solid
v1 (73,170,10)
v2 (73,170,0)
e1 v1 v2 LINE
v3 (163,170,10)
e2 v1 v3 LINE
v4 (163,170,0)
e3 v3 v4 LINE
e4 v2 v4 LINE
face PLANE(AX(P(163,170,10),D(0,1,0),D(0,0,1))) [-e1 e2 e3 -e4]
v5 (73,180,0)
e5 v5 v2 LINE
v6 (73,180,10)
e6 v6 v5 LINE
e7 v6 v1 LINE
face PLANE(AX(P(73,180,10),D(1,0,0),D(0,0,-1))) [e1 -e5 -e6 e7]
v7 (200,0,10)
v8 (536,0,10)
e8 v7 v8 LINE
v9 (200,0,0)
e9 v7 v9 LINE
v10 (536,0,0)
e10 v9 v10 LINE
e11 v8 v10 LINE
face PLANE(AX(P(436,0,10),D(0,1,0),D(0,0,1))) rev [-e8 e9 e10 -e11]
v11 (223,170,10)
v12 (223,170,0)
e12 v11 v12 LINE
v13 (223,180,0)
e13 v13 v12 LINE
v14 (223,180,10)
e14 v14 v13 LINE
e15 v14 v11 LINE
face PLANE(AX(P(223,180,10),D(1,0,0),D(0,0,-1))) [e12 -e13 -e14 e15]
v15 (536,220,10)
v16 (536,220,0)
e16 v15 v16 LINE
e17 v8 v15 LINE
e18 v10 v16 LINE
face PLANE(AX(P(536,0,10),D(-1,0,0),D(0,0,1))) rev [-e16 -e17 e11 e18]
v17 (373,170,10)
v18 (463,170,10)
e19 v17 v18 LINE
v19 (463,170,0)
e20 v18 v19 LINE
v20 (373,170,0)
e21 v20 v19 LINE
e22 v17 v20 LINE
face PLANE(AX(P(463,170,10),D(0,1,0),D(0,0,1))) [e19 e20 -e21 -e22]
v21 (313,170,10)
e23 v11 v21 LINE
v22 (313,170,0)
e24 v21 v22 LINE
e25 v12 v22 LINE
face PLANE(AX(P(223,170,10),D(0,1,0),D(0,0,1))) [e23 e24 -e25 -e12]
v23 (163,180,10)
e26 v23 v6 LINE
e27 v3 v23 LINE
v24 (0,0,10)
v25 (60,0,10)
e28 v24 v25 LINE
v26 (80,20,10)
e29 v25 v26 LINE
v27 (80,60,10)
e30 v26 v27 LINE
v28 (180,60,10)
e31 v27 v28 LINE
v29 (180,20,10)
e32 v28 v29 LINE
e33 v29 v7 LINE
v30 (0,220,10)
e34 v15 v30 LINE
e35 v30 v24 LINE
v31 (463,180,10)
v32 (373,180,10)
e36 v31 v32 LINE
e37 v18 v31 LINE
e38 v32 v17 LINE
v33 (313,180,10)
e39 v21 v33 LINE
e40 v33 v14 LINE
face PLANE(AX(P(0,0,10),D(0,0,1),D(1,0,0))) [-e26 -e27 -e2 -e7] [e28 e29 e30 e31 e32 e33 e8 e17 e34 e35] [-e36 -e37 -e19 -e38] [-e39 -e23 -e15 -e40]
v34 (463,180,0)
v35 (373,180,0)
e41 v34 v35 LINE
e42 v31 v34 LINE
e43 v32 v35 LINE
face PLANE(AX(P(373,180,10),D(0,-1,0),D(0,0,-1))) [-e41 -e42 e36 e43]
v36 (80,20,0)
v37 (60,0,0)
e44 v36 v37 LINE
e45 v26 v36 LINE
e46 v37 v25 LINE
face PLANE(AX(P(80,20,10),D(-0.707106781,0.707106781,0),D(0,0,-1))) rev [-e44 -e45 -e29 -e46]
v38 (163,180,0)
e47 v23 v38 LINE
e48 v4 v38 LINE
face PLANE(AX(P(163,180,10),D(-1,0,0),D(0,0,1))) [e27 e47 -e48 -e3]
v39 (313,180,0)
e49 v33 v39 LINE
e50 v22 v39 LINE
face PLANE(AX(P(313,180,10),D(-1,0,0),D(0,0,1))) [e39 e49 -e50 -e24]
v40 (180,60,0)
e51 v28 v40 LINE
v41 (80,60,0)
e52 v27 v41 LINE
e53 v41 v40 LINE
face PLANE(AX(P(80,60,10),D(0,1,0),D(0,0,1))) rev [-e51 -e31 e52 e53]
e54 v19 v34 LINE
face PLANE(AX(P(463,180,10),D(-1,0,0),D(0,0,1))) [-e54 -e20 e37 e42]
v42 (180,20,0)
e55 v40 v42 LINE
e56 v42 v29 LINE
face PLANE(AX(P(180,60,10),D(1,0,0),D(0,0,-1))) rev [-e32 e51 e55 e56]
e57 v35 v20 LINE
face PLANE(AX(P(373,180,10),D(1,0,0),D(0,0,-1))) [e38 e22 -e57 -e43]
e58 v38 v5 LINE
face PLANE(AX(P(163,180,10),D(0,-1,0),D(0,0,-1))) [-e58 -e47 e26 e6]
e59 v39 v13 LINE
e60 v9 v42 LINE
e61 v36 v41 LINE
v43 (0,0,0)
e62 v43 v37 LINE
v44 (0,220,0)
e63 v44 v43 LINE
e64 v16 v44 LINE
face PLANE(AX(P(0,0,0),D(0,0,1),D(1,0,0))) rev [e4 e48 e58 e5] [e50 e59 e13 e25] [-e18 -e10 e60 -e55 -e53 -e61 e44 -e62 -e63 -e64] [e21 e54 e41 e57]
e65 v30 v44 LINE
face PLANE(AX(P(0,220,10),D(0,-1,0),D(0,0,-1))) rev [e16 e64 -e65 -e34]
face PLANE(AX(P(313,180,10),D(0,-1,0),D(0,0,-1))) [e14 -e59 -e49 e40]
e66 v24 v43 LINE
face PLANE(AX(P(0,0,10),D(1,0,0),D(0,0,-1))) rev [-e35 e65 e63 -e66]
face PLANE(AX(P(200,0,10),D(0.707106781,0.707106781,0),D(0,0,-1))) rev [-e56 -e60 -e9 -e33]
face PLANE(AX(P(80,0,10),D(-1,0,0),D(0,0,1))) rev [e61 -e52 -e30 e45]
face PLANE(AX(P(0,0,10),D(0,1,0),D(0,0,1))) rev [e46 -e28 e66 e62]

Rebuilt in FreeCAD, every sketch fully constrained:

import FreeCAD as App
import Part
import Sketcher
from FreeCAD import Vector


def edges_at(feature, points):
    """Names of the edges that pass closest to the given points."""
    edges = feature.Shape.Edges
    near = lambda p: min(range(len(edges)), key=lambda i: edges[i].distToShape(Part.Vertex(*p))[0])
    return sorted({f"Edge{near(p) + 1}" for p in points})

doc = App.newDocument("Part")
body = doc.addObject("PartDesign::Body", "Body")

# Sketch on XY plane
sketch1 = body.newObject("Sketcher::SketchObject", "Sketch")
sketch1.AttachmentSupport = (doc.getObject("XY_Plane"), [""])
sketch1.MapMode = "FlatFace"
sketch1.addGeometry(Part.LineSegment(Vector(536, 220, 0), Vector(0, 220, 0)), False)
sketch1.addGeometry(Part.LineSegment(Vector(0, 220, 0), Vector(0, 0, 0)), False)
sketch1.addGeometry(Part.LineSegment(Vector(0, 0, 0), Vector(80, 0, 0)), False)
sketch1.addGeometry(Part.LineSegment(Vector(80, 0, 0), Vector(80, 60, 0)), False)
sketch1.addGeometry(Part.LineSegment(Vector(80, 60, 0), Vector(180, 60, 0)), False)
sketch1.addGeometry(Part.LineSegment(Vector(180, 60, 0), Vector(180, 0, 0)), False)
sketch1.addGeometry(Part.LineSegment(Vector(180, 0, 0), Vector(536, 0, 0)), False)
sketch1.addGeometry(Part.LineSegment(Vector(536, 0, 0), Vector(536, 220, 0)), False)
sketch1.addGeometry(Part.LineSegment(Vector(373, 170, 0), Vector(373, 180, 0)), False)
sketch1.addGeometry(Part.LineSegment(Vector(373, 180, 0), Vector(463, 180, 0)), False)
sketch1.addGeometry(Part.LineSegment(Vector(463, 180, 0), Vector(463, 170, 0)), False)
sketch1.addGeometry(Part.LineSegment(Vector(463, 170, 0), Vector(373, 170, 0)), False)
sketch1.addGeometry(Part.LineSegment(Vector(223, 170, 0), Vector(223, 180, 0)), False)
sketch1.addGeometry(Part.LineSegment(Vector(223, 180, 0), Vector(313, 180, 0)), False)
sketch1.addGeometry(Part.LineSegment(Vector(313, 180, 0), Vector(313, 170, 0)), False)
sketch1.addGeometry(Part.LineSegment(Vector(313, 170, 0), Vector(223, 170, 0)), False)
sketch1.addGeometry(Part.LineSegment(Vector(73, 170, 0), Vector(73, 180, 0)), False)
sketch1.addGeometry(Part.LineSegment(Vector(73, 180, 0), Vector(163, 180, 0)), False)
sketch1.addGeometry(Part.LineSegment(Vector(163, 180, 0), Vector(163, 170, 0)), False)
sketch1.addGeometry(Part.LineSegment(Vector(163, 170, 0), Vector(73, 170, 0)), False)
sketch1.addConstraint(Sketcher.Constraint("Coincident", 0, 2, 1, 1))
sketch1.addConstraint(Sketcher.Constraint("Coincident", 1, 2, 2, 1))
sketch1.addConstraint(Sketcher.Constraint("Coincident", 2, 2, 3, 1))
sketch1.addConstraint(Sketcher.Constraint("Coincident", 3, 2, 4, 1))
sketch1.addConstraint(Sketcher.Constraint("Coincident", 4, 2, 5, 1))
sketch1.addConstraint(Sketcher.Constraint("Coincident", 5, 2, 6, 1))
sketch1.addConstraint(Sketcher.Constraint("Coincident", 6, 2, 7, 1))
sketch1.addConstraint(Sketcher.Constraint("Coincident", 7, 2, 0, 1))
sketch1.addConstraint(Sketcher.Constraint("Coincident", 8, 2, 9, 1))
sketch1.addConstraint(Sketcher.Constraint("Coincident", 9, 2, 10, 1))
sketch1.addConstraint(Sketcher.Constraint("Coincident", 10, 2, 11, 1))
sketch1.addConstraint(Sketcher.Constraint("Coincident", 11, 2, 8, 1))
sketch1.addConstraint(Sketcher.Constraint("Coincident", 12, 2, 13, 1))
sketch1.addConstraint(Sketcher.Constraint("Coincident", 13, 2, 14, 1))
sketch1.addConstraint(Sketcher.Constraint("Coincident", 14, 2, 15, 1))
sketch1.addConstraint(Sketcher.Constraint("Coincident", 15, 2, 12, 1))
sketch1.addConstraint(Sketcher.Constraint("Coincident", 16, 2, 17, 1))
sketch1.addConstraint(Sketcher.Constraint("Coincident", 17, 2, 18, 1))
sketch1.addConstraint(Sketcher.Constraint("Coincident", 18, 2, 19, 1))
sketch1.addConstraint(Sketcher.Constraint("Coincident", 19, 2, 16, 1))
sketch1.addConstraint(Sketcher.Constraint("Horizontal", 0))
sketch1.addConstraint(Sketcher.Constraint("Vertical", 1))
sketch1.addConstraint(Sketcher.Constraint("Horizontal", 2))
sketch1.addConstraint(Sketcher.Constraint("Vertical", 3))
sketch1.addConstraint(Sketcher.Constraint("Horizontal", 4))
sketch1.addConstraint(Sketcher.Constraint("Vertical", 5))
sketch1.addConstraint(Sketcher.Constraint("Horizontal", 6))
sketch1.addConstraint(Sketcher.Constraint("Vertical", 7))
sketch1.addConstraint(Sketcher.Constraint("Vertical", 8))
sketch1.addConstraint(Sketcher.Constraint("Horizontal", 9))
sketch1.addConstraint(Sketcher.Constraint("Vertical", 10))
sketch1.addConstraint(Sketcher.Constraint("Horizontal", 11))
sketch1.addConstraint(Sketcher.Constraint("Vertical", 12))
sketch1.addConstraint(Sketcher.Constraint("Horizontal", 13))
sketch1.addConstraint(Sketcher.Constraint("Vertical", 14))
sketch1.addConstraint(Sketcher.Constraint("Horizontal", 15))
sketch1.addConstraint(Sketcher.Constraint("Vertical", 16))
sketch1.addConstraint(Sketcher.Constraint("Horizontal", 17))
sketch1.addConstraint(Sketcher.Constraint("Vertical", 18))
sketch1.addConstraint(Sketcher.Constraint("Horizontal", 19))
sketch1.addConstraint(Sketcher.Constraint("Coincident", 1, 2, -1, 1))
sketch1.addConstraint(Sketcher.Constraint("PointOnObject", 5, 2, -1))
sketch1.addConstraint(Sketcher.Constraint("Horizontal", 9, 2, 12, 2))
sketch1.addConstraint(Sketcher.Constraint("Horizontal", 11, 2, 14, 2))
sketch1.addConstraint(Sketcher.Constraint("Horizontal", 13, 2, 16, 2))
sketch1.addConstraint(Sketcher.Constraint("Horizontal", 15, 2, 18, 2))
sketch1.addConstraint(Sketcher.Constraint("Equal", 11, 13))
sketch1.addConstraint(Sketcher.Constraint("Equal", 15, 17))
sketch1.addConstraint(Sketcher.Constraint("DistanceX", 0, 2, 0, 1, 536.0))
sketch1.addConstraint(Sketcher.Constraint("DistanceX", 2, 1, 2, 2, 80.0))
sketch1.addConstraint(Sketcher.Constraint("DistanceX", 4, 1, 4, 2, 100.0))
sketch1.addConstraint(Sketcher.Constraint("DistanceX", 9, 1, 9, 2, 90.0))
sketch1.addConstraint(Sketcher.Constraint("DistanceY", 1, 2, 1, 1, 220.0))
sketch1.addConstraint(Sketcher.Constraint("DistanceY", 3, 1, 3, 2, 60.0))
sketch1.addConstraint(Sketcher.Constraint("DistanceY", 8, 1, 8, 2, 10.0))
sketch1.addConstraint(Sketcher.Constraint("DistanceX", -1, 1, 8, 2, 373.0))
sketch1.addConstraint(Sketcher.Constraint("DistanceY", -1, 1, 8, 2, 180.0))
sketch1.addConstraint(Sketcher.Constraint("DistanceX", -1, 1, 12, 2, 223.0))
sketch1.addConstraint(Sketcher.Constraint("DistanceX", -1, 1, 16, 2, 73.0))
pad1 = body.newObject("PartDesign::Pad", "Pad")
pad1.Profile = sketch1
pad1.Length = 10
doc.recompute()

chamfer = body.newObject("PartDesign::Chamfer", "Chamfer")
chamfer.Base = (pad1, edges_at(pad1, [(180, 0, 5), (80, 0, 5)]))
chamfer.Size = 20

doc.recompute()
